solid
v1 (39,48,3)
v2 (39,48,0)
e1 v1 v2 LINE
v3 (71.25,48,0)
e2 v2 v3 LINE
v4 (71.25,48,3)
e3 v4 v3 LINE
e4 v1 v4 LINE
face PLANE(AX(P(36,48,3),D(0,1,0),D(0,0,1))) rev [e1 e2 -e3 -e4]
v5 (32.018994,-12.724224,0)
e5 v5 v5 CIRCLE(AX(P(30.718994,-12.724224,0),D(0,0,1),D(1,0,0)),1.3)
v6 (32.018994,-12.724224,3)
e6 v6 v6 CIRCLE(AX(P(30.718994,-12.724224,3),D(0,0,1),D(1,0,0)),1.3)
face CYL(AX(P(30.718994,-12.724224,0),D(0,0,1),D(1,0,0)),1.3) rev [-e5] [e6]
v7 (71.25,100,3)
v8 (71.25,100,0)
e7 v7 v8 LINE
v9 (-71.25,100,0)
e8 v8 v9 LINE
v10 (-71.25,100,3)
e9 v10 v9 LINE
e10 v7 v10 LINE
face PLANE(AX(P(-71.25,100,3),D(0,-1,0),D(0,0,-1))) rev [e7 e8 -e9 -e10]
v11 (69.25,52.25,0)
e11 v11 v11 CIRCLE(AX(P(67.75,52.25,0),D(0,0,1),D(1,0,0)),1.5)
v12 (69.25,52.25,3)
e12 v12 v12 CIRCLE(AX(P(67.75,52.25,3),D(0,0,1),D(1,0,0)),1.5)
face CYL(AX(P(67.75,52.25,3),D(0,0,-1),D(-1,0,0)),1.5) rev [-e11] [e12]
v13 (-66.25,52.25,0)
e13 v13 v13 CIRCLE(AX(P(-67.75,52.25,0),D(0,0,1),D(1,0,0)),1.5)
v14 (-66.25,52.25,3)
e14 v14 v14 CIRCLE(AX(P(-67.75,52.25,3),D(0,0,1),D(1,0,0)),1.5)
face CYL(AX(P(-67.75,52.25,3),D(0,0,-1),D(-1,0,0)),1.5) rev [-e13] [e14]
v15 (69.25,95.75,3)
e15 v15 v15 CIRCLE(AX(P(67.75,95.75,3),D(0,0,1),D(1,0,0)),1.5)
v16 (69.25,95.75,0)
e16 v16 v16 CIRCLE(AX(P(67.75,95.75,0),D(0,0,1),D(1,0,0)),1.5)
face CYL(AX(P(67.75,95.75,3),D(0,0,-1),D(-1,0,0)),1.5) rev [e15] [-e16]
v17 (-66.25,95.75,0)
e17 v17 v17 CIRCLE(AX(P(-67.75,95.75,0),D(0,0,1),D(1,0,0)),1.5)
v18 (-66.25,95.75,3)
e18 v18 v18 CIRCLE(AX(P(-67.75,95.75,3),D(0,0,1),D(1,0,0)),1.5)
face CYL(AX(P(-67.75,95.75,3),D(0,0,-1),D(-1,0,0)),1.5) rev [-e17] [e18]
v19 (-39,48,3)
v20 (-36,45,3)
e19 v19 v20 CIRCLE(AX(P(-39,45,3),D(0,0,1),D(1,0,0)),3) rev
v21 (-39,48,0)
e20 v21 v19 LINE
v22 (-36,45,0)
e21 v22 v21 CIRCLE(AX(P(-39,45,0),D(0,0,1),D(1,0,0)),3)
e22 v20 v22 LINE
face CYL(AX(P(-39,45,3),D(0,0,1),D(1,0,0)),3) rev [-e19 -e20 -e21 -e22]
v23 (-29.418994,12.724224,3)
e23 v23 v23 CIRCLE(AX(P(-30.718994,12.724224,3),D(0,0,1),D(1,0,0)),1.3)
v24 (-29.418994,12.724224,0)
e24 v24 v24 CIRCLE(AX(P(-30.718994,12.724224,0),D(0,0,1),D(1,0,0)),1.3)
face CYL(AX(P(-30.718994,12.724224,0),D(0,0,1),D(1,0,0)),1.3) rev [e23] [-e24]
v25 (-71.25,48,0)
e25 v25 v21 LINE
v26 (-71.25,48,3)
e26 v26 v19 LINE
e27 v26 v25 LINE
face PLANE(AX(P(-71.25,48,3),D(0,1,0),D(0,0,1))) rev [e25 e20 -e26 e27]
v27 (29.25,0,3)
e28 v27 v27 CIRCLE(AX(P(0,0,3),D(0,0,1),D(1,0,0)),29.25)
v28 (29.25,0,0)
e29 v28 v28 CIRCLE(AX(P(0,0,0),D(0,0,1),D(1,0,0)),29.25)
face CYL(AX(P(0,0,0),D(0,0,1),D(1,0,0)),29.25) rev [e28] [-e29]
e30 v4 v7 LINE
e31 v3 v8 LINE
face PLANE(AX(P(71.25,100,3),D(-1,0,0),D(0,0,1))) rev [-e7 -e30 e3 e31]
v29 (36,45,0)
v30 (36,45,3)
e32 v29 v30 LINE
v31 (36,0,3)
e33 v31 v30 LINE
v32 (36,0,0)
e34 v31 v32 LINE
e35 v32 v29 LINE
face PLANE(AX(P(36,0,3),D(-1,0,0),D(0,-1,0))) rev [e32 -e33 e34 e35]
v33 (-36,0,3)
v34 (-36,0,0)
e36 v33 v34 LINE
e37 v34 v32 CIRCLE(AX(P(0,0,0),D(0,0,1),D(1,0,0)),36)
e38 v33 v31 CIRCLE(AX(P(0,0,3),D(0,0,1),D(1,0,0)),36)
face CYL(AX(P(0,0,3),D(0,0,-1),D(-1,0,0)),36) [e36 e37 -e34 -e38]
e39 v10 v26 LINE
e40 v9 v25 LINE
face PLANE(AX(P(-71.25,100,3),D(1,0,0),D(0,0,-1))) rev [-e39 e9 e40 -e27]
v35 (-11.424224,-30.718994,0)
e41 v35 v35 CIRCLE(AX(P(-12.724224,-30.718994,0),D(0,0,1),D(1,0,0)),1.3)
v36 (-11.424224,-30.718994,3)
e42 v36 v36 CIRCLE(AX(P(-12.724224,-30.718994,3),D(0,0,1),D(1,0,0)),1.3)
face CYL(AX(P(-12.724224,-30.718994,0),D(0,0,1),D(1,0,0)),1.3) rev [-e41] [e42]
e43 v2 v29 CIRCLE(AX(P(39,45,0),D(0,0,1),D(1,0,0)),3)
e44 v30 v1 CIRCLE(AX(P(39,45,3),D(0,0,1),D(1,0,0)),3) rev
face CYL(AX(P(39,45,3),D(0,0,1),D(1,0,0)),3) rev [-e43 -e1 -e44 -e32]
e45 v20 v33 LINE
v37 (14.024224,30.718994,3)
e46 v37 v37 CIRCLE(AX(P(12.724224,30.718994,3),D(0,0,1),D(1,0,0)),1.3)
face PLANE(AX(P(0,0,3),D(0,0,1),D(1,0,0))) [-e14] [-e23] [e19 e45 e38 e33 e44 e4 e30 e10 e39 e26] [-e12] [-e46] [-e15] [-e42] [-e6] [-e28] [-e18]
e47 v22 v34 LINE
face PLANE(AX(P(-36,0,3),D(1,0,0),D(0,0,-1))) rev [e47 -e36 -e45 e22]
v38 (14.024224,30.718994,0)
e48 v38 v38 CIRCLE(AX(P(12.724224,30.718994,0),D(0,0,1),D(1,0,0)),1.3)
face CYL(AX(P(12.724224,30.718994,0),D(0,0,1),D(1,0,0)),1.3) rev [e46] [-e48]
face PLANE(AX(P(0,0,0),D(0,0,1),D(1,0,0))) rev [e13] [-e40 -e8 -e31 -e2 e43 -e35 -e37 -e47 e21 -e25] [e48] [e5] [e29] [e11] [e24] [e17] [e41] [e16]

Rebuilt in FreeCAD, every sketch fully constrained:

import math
import FreeCAD as App
import Part
import Sketcher


def edges_at(feature, points):
    """Names of the edges that pass closest to the given points."""
    edges = feature.Shape.Edges
    near = lambda p: min(range(len(edges)), key=lambda i: edges[i].distToShape(Part.Vertex(*p))[0])
    return sorted({f"Edge{near(p) + 1}" for p in points})

doc = App.newDocument("Part")
body = doc.addObject("PartDesign::Body", "Body")

# Sketch on XY plane
sketch1 = doc.addObject("Sketcher::SketchObject", "Sketch")
body.addObject(sketch1)
sketch1.AttachmentSupport = (doc.XY_Plane, [""])
sketch1.MapMode = "FlatFace"
sketch1.addGeometry([
    Part.LineSegment(App.Vector(-36, 48, 0), App.Vector(-36, 0, 0)),  # 0
    Part.ArcOfCircle(Part.Circle(App.Vector(0, 0, 0), App.Vector(0, 0, 1), 36), math.radians(180), math.radians(360)),  # 1
    Part.LineSegment(App.Vector(36, 0, 0), App.Vector(36, 48, 0)),  # 2
    Part.LineSegment(App.Vector(36, 48, 0), App.Vector(71.2, 48, 0)),  # 3
    Part.LineSegment(App.Vector(71.2, 48, 0), App.Vector(71.2, 100, 0)),  # 4
    Part.LineSegment(App.Vector(71.2, 100, 0), App.Vector(-71.2, 100, 0)),  # 5
    Part.LineSegment(App.Vector(-71.2, 100, 0), App.Vector(-71.2, 48, 0)),  # 6
    Part.LineSegment(App.Vector(-71.2, 48, 0), App.Vector(-36, 48, 0)),  # 7
    Part.Circle(App.Vector(67.8, 52.2, 0), App.Vector(0, 0, 1), 1.5),  # 8
    Part.Circle(App.Vector(-67.8, 52.2, 0), App.Vector(0, 0, 1), 1.5),  # 9
    Part.Circle(App.Vector(67.8, 95.8, 0), App.Vector(0, 0, 1), 1.5),  # 10
    Part.Circle(App.Vector(-67.8, 95.8, 0), App.Vector(0, 0, 1), 1.5),  # 11
], False)
sketch1.addConstraint([
    Sketcher.Constraint("Tangent", 0, 2, 1, 1),
    Sketcher.Constraint("Tangent", 1, 2, 2, 1),
    Sketcher.Constraint("Coincident", 2, 2, 3, 1),
    Sketcher.Constraint("Coincident", 3, 2, 4, 1),
    Sketcher.Constraint("Coincident", 4, 2, 5, 1),
    Sketcher.Constraint("Coincident", 5, 2, 6, 1),
    Sketcher.Constraint("Coincident", 6, 2, 7, 1),
    Sketcher.Constraint("Coincident", 7, 2, 0, 1),
    Sketcher.Constraint("Vertical", 0),
    Sketcher.Constraint("Vertical", 2),
    Sketcher.Constraint("Horizontal", 3),
    Sketcher.Constraint("Vertical", 4),
    Sketcher.Constraint("Horizontal", 5),
    Sketcher.Constraint("Vertical", 6),
    Sketcher.Constraint("Horizontal", 7),
    Sketcher.Constraint("Coincident", 1, 3, -1, 1),
    Sketcher.Constraint("Equal", 8, 9),
    Sketcher.Constraint("Equal", 9, 10),
    Sketcher.Constraint("Equal", 10, 11),
    Sketcher.Constraint("Symmetric", 8, 3, 9, 3, -2),
    Sketcher.Constraint("Symmetric", 10, 3, 11, 3, -2),
    Sketcher.Constraint("Symmetric", 3, 2, 6, 2, -2),
    Sketcher.Constraint("Vertical", 8, 3, 10, 3),
    Sketcher.Constraint("Diameter", 8, 3.0),
    Sketcher.Constraint("Radius", 1, 36.0),
    Sketcher.Constraint("DistanceY", 0, 2, 0, 1, 48.0),
    Sketcher.Constraint("DistanceY", 4, 1, 4, 2, 52.0),
    Sketcher.Constraint("DistanceX", 5, 2, 5, 1, 142.5),
    Sketcher.Constraint("DistanceX", 9, 3, 8, 3, 135.5),
    Sketcher.Constraint("DistanceY", 8, 3, 10, 3, 43.5),
    Sketcher.Constraint("DistanceY", -1, 1, 8, 3, 52.25),
])
pad1 = doc.addObject("PartDesign::Pad", "Pad")
body.addObject(pad1)
pad1.Profile = sketch1
pad1.Length = 3
doc.recompute()

fillet = doc.addObject("PartDesign::Fillet", "Fillet")
body.addObject(fillet)
fillet.Base = (pad1, edges_at(pad1, [(36, 48, 1.5), (-36, 48, 1.5)]))
fillet.Radius = 3

# Sketch on XY plane
sketch2 = doc.addObject("Sketcher::SketchObject", "Sketch001")
body.addObject(sketch2)
sketch2.AttachmentSupport = (doc.XY_Plane, [""])
sketch2.MapMode = "FlatFace"
sketch2.AttachmentOffset = App.Placement(App.Vector(0, 0, 3), App.Rotation())
sketch2.addGeometry([
    Part.Circle(App.Vector(0, 0, 0), App.Vector(0, 0, 1), 29.2),  # 0
    Part.Circle(App.Vector(12.7, 30.7, 0), App.Vector(0, 0, 1), 1.3),  # 1
    Part.Circle(App.Vector(30.7, -12.7, 0), App.Vector(0, 0, 1), 1.3),  # 2
    Part.Circle(App.Vector(-12.7, -30.7, 0), App.Vector(0, 0, 1), 1.3),  # 3
    Part.Circle(App.Vector(-30.7, 12.7, 0), App.Vector(0, 0, 1), 1.3),  # 4
], False)
sketch2.addConstraint([
    Sketcher.Constraint("Coincident", 0, 3, -1, 1),
    Sketcher.Constraint("Equal", 1, 2),
    Sketcher.Constraint("Equal", 2, 3),
    Sketcher.Constraint("Equal", 3, 4),
    Sketcher.Constraint("Symmetric", 1, 3, 3, 3, -1, 1),
    Sketcher.Constraint("Symmetric", 2, 3, 4, 3, -1, 1),
    Sketcher.Constraint("Diameter", 0, 58.5),
    Sketcher.Constraint("Diameter", 1, 2.6),
    Sketcher.Constraint("DistanceX", 1, 3, 2, 3, 17.99477),
    Sketcher.Constraint("DistanceY", 2, 3, 1, 3, 43.443219),
    Sketcher.Constraint("DistanceX", 3, 3, 2, 3, 43.443219),
    Sketcher.Constraint("DistanceY", 3, 3, 2, 3, 17.99477),
])
pocket1 = doc.addObject("PartDesign::Pocket", "Pocket")
body.addObject(pocket1)
pocket1.Profile = sketch2
pocket1.Length = 3

doc.recompute()
